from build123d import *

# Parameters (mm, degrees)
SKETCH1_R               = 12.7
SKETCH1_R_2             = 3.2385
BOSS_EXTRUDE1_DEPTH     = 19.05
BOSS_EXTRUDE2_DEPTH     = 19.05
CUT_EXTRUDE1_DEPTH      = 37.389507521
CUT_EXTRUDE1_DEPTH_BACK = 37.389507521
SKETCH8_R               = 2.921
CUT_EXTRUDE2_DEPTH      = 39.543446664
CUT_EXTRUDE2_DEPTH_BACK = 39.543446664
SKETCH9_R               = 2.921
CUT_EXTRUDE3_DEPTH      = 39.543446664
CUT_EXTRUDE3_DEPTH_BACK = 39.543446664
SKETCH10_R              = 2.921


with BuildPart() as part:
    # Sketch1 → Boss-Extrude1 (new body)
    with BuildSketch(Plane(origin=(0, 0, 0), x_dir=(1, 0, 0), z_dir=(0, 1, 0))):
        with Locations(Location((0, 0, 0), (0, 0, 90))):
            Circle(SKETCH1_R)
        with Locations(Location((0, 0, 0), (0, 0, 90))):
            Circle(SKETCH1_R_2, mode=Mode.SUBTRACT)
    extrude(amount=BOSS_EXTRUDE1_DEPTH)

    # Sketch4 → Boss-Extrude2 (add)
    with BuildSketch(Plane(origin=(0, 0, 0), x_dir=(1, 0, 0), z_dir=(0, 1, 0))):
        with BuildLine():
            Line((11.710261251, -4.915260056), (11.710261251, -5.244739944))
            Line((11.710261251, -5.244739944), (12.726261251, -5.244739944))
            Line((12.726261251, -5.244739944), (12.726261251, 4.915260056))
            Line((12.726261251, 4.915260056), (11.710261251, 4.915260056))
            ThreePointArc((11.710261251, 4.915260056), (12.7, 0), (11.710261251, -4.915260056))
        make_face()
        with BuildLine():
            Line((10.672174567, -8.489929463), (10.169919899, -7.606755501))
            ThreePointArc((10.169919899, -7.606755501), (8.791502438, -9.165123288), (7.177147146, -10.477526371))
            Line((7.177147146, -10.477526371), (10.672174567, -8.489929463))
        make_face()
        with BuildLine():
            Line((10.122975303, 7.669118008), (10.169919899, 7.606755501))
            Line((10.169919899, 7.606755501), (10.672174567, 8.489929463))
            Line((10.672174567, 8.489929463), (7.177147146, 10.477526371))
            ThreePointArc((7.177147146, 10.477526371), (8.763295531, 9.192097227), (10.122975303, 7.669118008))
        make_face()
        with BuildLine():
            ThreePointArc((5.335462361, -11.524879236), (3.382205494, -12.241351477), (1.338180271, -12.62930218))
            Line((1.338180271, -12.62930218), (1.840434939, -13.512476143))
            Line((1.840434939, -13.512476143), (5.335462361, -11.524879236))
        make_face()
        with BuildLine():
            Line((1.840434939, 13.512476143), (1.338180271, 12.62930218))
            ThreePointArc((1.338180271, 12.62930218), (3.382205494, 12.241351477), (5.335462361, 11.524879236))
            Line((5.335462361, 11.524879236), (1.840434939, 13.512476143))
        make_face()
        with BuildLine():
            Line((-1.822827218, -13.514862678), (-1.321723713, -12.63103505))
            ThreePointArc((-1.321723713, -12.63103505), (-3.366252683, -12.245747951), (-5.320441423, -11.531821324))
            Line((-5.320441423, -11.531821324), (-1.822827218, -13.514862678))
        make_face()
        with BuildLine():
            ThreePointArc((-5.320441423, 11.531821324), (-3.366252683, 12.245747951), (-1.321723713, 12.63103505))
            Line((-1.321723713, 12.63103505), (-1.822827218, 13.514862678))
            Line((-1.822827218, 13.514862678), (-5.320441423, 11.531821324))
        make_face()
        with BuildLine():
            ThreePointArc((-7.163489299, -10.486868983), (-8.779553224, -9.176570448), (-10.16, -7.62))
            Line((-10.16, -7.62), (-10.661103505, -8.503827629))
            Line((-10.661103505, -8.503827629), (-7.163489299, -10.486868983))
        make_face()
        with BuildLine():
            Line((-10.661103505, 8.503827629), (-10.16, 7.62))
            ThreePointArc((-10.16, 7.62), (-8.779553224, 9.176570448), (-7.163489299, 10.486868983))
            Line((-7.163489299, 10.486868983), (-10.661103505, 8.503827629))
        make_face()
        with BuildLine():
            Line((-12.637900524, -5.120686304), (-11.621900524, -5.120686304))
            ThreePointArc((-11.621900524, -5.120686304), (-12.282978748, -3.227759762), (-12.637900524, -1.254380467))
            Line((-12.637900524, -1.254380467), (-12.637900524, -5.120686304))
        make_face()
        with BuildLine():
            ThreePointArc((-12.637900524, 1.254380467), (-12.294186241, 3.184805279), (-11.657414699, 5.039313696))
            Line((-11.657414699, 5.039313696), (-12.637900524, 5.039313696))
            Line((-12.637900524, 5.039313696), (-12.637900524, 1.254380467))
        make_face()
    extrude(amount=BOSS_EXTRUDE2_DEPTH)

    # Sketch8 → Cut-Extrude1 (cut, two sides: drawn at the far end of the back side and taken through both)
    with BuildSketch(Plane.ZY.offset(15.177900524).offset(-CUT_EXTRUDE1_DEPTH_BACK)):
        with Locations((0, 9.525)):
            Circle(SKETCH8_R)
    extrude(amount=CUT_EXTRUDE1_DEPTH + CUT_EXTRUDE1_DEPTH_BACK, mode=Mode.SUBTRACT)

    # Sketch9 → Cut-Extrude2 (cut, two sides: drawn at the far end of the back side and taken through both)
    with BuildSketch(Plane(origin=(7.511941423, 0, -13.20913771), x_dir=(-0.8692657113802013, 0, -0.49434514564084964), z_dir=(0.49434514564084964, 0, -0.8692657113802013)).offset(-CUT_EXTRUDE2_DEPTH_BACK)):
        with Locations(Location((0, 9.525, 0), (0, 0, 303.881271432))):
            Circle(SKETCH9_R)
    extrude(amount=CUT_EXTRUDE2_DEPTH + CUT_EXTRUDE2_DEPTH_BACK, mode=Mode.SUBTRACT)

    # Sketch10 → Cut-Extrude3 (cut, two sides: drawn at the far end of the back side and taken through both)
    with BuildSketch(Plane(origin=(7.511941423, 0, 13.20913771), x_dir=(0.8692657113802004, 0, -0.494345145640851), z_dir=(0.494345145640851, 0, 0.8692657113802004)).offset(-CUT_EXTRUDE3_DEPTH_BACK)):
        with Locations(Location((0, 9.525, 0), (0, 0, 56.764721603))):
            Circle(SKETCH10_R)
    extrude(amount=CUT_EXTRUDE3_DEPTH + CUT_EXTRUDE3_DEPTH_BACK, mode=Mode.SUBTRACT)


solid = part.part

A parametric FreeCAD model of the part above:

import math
import FreeCAD as App
import Part
import Sketcher

V = App.Vector
Q = App.Units.Quantity

doc = App.newDocument("Part")
body = doc.addObject("PartDesign::Body", "Body")

# Sketch on XZ plane
sketch1 = doc.addObject("Sketcher::SketchObject", "Sketch")
body.addObject(sketch1)
sketch1.AttachmentSupport = (doc.XZ_Plane, [""])
sketch1.MapMode = "FlatFace"
sketch1.addGeometry([
    Part.Circle(V(0, 0, 0), V(0, 0, 1), 12.7),
    Part.Circle(V(0, 0, 0), V(0, 0, 1), 3.2),
], False)
sketch1.addConstraint([
    Sketcher.Constraint("Coincident", 0, 3, -1, 1),
    Sketcher.Constraint("Coincident", 1, 3, -1, 1),
    Sketcher.Constraint("Diameter", 0, Q("1 in")),
    Sketcher.Constraint("Diameter", 1, Q("0.255 in")),
])
pad1 = doc.addObject("PartDesign::Pad", "Pad")
body.addObject(pad1)
pad1.Profile = sketch1
pad1.Length = Q("0.75 in")
pad1.Reversed = True

# Sketch on XZ plane
sketch2 = doc.addObject("Sketcher::SketchObject", "Sketch001")
body.addObject(sketch2)
sketch2.AttachmentSupport = (doc.XZ_Plane, [""])
sketch2.MapMode = "FlatFace"
sketch2.addGeometry([
    Part.LineSegment(V(11.71, 4.92, 0), V(11.71, 5.24, 0)),  # 0
    Part.LineSegment(V(11.71, 5.24, 0), V(12.73, 5.24, 0)),  # 1
    Part.LineSegment(V(12.73, 5.24, 0), V(12.73, -4.92, 0)),  # 2
    Part.LineSegment(V(12.73, -4.92, 0), V(11.71, -4.92, 0)),  # 3
    Part.ArcOfCircle(Part.Circle(V(0, 0, 0), V(0, 0, 1), 12.7), math.radians(-23), math.radians(23)),  # 4
    Part.LineSegment(V(10.67, 8.49, 0), V(10.17, 7.61, 0)),  # 5
    Part.ArcOfCircle(Part.Circle(V(0, 0, 0), V(0, 0, 1), 12.7), math.radians(36.8), math.radians(55.59)),  # 6
    Part.LineSegment(V(7.18, 10.48, 0), V(10.67, 8.49, 0)),  # 7
    Part.LineSegment(V(10.12, -7.67, 0), V(10.17, -7.61, 0)),  # 8
    Part.LineSegment(V(10.17, -7.61, 0), V(10.67, -8.49, 0)),  # 9
    Part.LineSegment(V(10.67, -8.49, 0), V(7.18, -10.48, 0)),  # 10
    Part.ArcOfCircle(Part.Circle(V(0, 0, 0), V(0, 0, 1), 12.7), math.radians(-55.59), math.radians(-37.15)),  # 11
    Part.ArcOfCircle(Part.Circle(V(0, 0, 0), V(0, 0, 1), 12.7), math.radians(65.16), math.radians(83.95)),  # 12
    Part.LineSegment(V(1.34, 12.63, 0), V(1.84, 13.51, 0)),  # 13
    Part.LineSegment(V(1.84, 13.51, 0), V(5.34, 11.52, 0)),  # 14
    Part.LineSegment(V(1.84, -13.51, 0), V(1.34, -12.63, 0)),  # 15
    Part.ArcOfCircle(Part.Circle(V(0, 0, 0), V(0, 0, 1), 12.7), math.radians(-83.95), math.radians(-65.16)),  # 16
    Part.LineSegment(V(5.34, -11.52, 0), V(1.84, -13.51, 0)),  # 17
    Part.LineSegment(V(-1.82, 13.51, 0), V(-1.32, 12.63, 0)),  # 18
    Part.ArcOfCircle(Part.Circle(V(0, 0, 0), V(0, 0, 1), 12.7), math.radians(95.97), math.radians(114.77)),  # 19
    Part.LineSegment(V(-5.32, 11.53, 0), V(-1.82, 13.51, 0)),  # 20
    Part.ArcOfCircle(Part.Circle(V(0, 0, 0), V(0, 0, 1), 12.7), math.radians(-114.77), math.radians(-95.97)),  # 21
    Part.LineSegment(V(-1.32, -12.63, 0), V(-1.82, -13.51, 0)),  # 22
    Part.LineSegment(V(-1.82, -13.51, 0), V(-5.32, -11.53, 0)),  # 23
    Part.ArcOfCircle(Part.Circle(V(0, 0, 0), V(0, 0, 1), 12.7), math.radians(124.34), math.radians(143.13)),  # 24
    Part.LineSegment(V(-10.16, 7.62, 0), V(-10.66, 8.5, 0)),  # 25
    Part.LineSegment(V(-10.66, 8.5, 0), V(-7.16, 10.49, 0)),  # 26
    Part.LineSegment(V(-10.66, -8.5, 0), V(-10.16, -7.62, 0)),  # 27
    Part.ArcOfCircle(Part.Circle(V(0, 0, 0), V(0, 0, 1), 12.7), math.radians(-143.13), math.radians(-124.34)),  # 28
    Part.LineSegment(V(-7.16, -10.49, 0), V(-10.66, -8.5, 0)),  # 29
    Part.LineSegment(V(-12.64, 5.12, 0), V(-11.62, 5.12, 0)),  # 30
    Part.ArcOfCircle(Part.Circle(V(0, 0, 0), V(0, 0, 1), 12.7), math.radians(156.22), math.radians(174.33)),  # 31
    Part.LineSegment(V(-12.64, 1.25, 0), V(-12.64, 5.12, 0)),  # 32
    Part.ArcOfCircle(Part.Circle(V(0, 0, 0), V(0, 0, 1), 12.7), math.radians(-174.33), math.radians(-156.62)),  # 33
    Part.LineSegment(V(-11.66, -5.04, 0), V(-12.64, -5.04, 0)),  # 34
    Part.LineSegment(V(-12.64, -5.04, 0), V(-12.64, -1.25, 0)),  # 35
], False)
sketch2.addConstraint([
    Sketcher.Constraint("Coincident", 0, 2, 1, 1),
    Sketcher.Constraint("Coincident", 1, 2, 2, 1),
    Sketcher.Constraint("Coincident", 2, 2, 3, 1),
    Sketcher.Constraint("Coincident", 3, 2, 4, 1),
    Sketcher.Constraint("Coincident", 4, 2, 0, 1),
    Sketcher.Constraint("Coincident", 5, 2, 6, 1),
    Sketcher.Constraint("Coincident", 6, 2, 7, 1),
    Sketcher.Constraint("Coincident", 7, 2, 5, 1),
    Sketcher.Constraint("Coincident", 8, 2, 9, 1),
    Sketcher.Constraint("Coincident", 9, 2, 10, 1),
    Sketcher.Constraint("Coincident", 10, 2, 11, 1),
    Sketcher.Constraint("Coincident", 11, 2, 8, 1),
    Sketcher.Constraint("Coincident", 12, 2, 13, 1),
    Sketcher.Constraint("Coincident", 13, 2, 14, 1),
    Sketcher.Constraint("Coincident", 14, 2, 12, 1),
    Sketcher.Constraint("Coincident", 15, 2, 16, 1),
    Sketcher.Constraint("Coincident", 16, 2, 17, 1),
    Sketcher.Constraint("Coincident", 17, 2, 15, 1),
    Sketcher.Constraint("Coincident", 18, 2, 19, 1),
    Sketcher.Constraint("Coincident", 19, 2, 20, 1),
    Sketcher.Constraint("Coincident", 20, 2, 18, 1),
    Sketcher.Constraint("Coincident", 21, 2, 22, 1),
    Sketcher.Constraint("Coincident", 22, 2, 23, 1),
    Sketcher.Constraint("Coincident", 23, 2, 21, 1),
    Sketcher.Constraint("Coincident", 24, 2, 25, 1),
    Sketcher.Constraint("Coincident", 25, 2, 26, 1),
    Sketcher.Constraint("Coincident", 26, 2, 24, 1),
    Sketcher.Constraint("Coincident", 27, 2, 28, 1),
    Sketcher.Constraint("Coincident", 28, 2, 29, 1),
    Sketcher.Constraint("Coincident", 29, 2, 27, 1),
    Sketcher.Constraint("Coincident", 30, 2, 31, 1),
    Sketcher.Constraint("Coincident", 31, 2, 32, 1),
    Sketcher.Constraint("Coincident", 32, 2, 30, 1),
    Sketcher.Constraint("Coincident", 33, 2, 34, 1),
    Sketcher.Constraint("Coincident", 34, 2, 35, 1),
    Sketcher.Constraint("Coincident", 35, 2, 33, 1),
    Sketcher.Constraint("Vertical", 0),
    Sketcher.Constraint("Horizontal", 1),
    Sketcher.Constraint("Vertical", 2),
    Sketcher.Constraint("Horizontal", 3),
    Sketcher.Constraint("Horizontal", 30),
    Sketcher.Constraint("Vertical", 32),
    Sketcher.Constraint("Horizontal", 34),
    Sketcher.Constraint("Vertical", 35),
    Sketcher.Constraint("Coincident", 4, 3, -1, 1),
    Sketcher.Constraint("Coincident", 6, 3, -1, 1),
    Sketcher.Constraint("Coincident", 11, 3, -1, 1),
    Sketcher.Constraint("Coincident", 12, 3, -1, 1),
    Sketcher.Constraint("Coincident", 16, 3, -1, 1),
    Sketcher.Constraint("Coincident", 19, 3, -1, 1),
    Sketcher.Constraint("Coincident", 21, 3, -1, 1),
    Sketcher.Constraint("Coincident", 24, 3, -1, 1),
    Sketcher.Constraint("Coincident", 28, 3, -1, 1),
    Sketcher.Constraint("Coincident", 31, 3, -1, 1),
    Sketcher.Constraint("Coincident", 33, 3, -1, 1),
    Sketcher.Constraint("Equal", 4, 6),
    Sketcher.Constraint("Equal", 6, 11),
    Sketcher.Constraint("Equal", 11, 12),
    Sketcher.Constraint("Equal", 12, 16),
    Sketcher.Constraint("Equal", 16, 19),
    Sketcher.Constraint("Equal", 19, 21),
    Sketcher.Constraint("Equal", 21, 24),
    Sketcher.Constraint("Equal", 24, 28),
    Sketcher.Constraint("Equal", 28, 31),
    Sketcher.Constraint("Equal", 31, 33),
    Sketcher.Constraint("Symmetric", 5, 2, 8, 2, -1),
    Sketcher.Constraint("Symmetric", 7, 2, 9, 2, -1),
    Sketcher.Constraint("Symmetric", 13, 2, 17, 2, -1),
    Sketcher.Constraint("Symmetric", 20, 2, 22, 2, -1),
    Sketcher.Constraint("Symmetric", 25, 2, 29, 2, -1),
    Sketcher.Constraint("Perpendicular", 5, 7),
    Sketcher.Constraint("Perpendicular", 9, 10),
    Sketcher.Constraint("Perpendicular", 7, 13),
    Sketcher.Constraint("Perpendicular", 13, 14),
    Sketcher.Constraint("Perpendicular", 10, 15),
    Sketcher.Constraint("Perpendicular", 15, 17),
    Sketcher.Constraint("Perpendicular", 18, 20),
    Sketcher.Constraint("Perpendicular", 22, 23),
    Sketcher.Constraint("Perpendicular", 20, 25),
    Sketcher.Constraint("Perpendicular", 25, 26),
    Sketcher.Constraint("Perpendicular", 23, 27),
    Sketcher.Constraint("Perpendicular", 27, 29),
    Sketcher.Constraint("Vertical", 0, 2, 3, 2),
    Sketcher.Constraint("Vertical", 19, 2, 23, 2),
    Sketcher.Constraint("Vertical", 32, 2, 34, 2),
    Sketcher.Constraint("Equal", 3, 30),
    Sketcher.Constraint("Equal", 9, 13),
    Sketcher.Constraint("Equal", 10, 14),
    Sketcher.Constraint("Equal", 15, 18),
    Sketcher.Constraint("Equal", 17, 20),
    Sketcher.Constraint("Equal", 22, 25),
    Sketcher.Constraint("Equal", 23, 26),
    Sketcher.Constraint("Radius", 4, Q("0.5 in")),
    Sketcher.Constraint("DistanceY", 2, 2, 2, 1, Q("0.4 in")),
    Sketcher.Constraint("DistanceX", 1, 1, 1, 2, Q("0.04 in")),
    Sketcher.Constraint("DistanceX", 24, 2, -1, 1, Q("0.4 in")),
    Sketcher.Constraint("Distance", 5, Q("0.04 in")),
    Sketcher.Constraint("DistanceY", 0, 1, 0, 2, Q("0.32948 mm")),
    Sketcher.Constraint("DistanceX", 30, 2, -1, 1, Q("11.621901 mm")),
    Sketcher.Constraint("DistanceX", 11, 2, 9, 2, Q("0.549199 mm")),
    Sketcher.Constraint("DistanceX", 21, 2, 11, 2, Q("11.444699 mm")),
    Sketcher.Constraint("DistanceX", 34, 2, 34, 1, Q("0.980486 mm")),
    Sketcher.Constraint("DistanceX", -1, 1, 5, 2, Q("10.16992 mm")),
])
pad2 = doc.addObject("PartDesign::Pad", "Pad001")
body.addObject(pad2)
pad2.Profile = sketch2
pad2.Length = Q("0.75 in")
pad2.Reversed = True

# Sketch on YZ plane
sketch3 = doc.addObject("Sketcher::SketchObject", "Sketch002")
body.addObject(sketch3)
sketch3.AttachmentSupport = (doc.YZ_Plane, [""])
sketch3.MapMode = "FlatFace"
sketch3.AttachmentOffset = App.Placement(V(0, 0, -15.177901), App.Rotation())
sketch3.addGeometry(Part.Circle(V(9.5, 0, 0), V(0, 0, 1), 2.9), False)
sketch3.addConstraint([
    Sketcher.Constraint("PointOnObject", 0, 3, -1),
    Sketcher.Constraint("Diameter", 0, Q("0.23 in")),
    Sketcher.Constraint("DistanceX", -1, 1, 0, 3, Q("0.375 in")),
])
pocket1 = doc.addObject("PartDesign::Pocket", "Pocket")
body.addObject(pocket1)
pocket1.Profile = sketch3
pocket1.Type = "ThroughAll"
pocket1.Midplane = True

# Sketch on an angled plane
sketch4 = doc.addObject("Sketcher::SketchObject", "Sketch003")
body.addObject(sketch4)
sketch4.Placement = App.Placement(V(7.511941, 0, -13.209138), App.Rotation(V(-0.869265711, 0, -0.494345146), V(0, 1, 0), V(0.494345146, 0, -0.869265711), "ZXY"))
sketch4.addGeometry(Part.Circle(V(0, 9.5, 0), V(0, 0, 1), 2.9), False)
sketch4.addConstraint([
    Sketcher.Constraint("PointOnObject", 0, 3, -2),
    Sketcher.Constraint("Diameter", 0, Q("0.23 in")),
    Sketcher.Constraint("DistanceY", -1, 1, 0, 3, Q("0.375 in")),
])
pocket2 = doc.addObject("PartDesign::Pocket", "Pocket001")
body.addObject(pocket2)
pocket2.Profile = sketch4
pocket2.Type = "ThroughAll"
pocket2.Midplane = True

# Sketch on an angled plane
sketch5 = doc.addObject("Sketcher::SketchObject", "Sketch004")
body.addObject(sketch5)
sketch5.Placement = App.Placement(V(7.511941, 0, 13.209138), App.Rotation(V(0.869265711, 0, -0.494345146), V(0, 1, 0), V(0.494345146, 0, 0.869265711), "ZXY"))
sketch5.addGeometry(Part.Circle(V(0, 9.5, 0), V(0, 0, 1), 2.9), False)
sketch5.addConstraint([
    Sketcher.Constraint("PointOnObject", 0, 3, -2),
    Sketcher.Constraint("Diameter", 0, Q("0.23 in")),
    Sketcher.Constraint("DistanceY", -1, 1, 0, 3, Q("0.375 in")),
])
pocket3 = doc.addObject("PartDesign::Pocket", "Pocket002")
body.addObject(pocket3)
pocket3.Profile = sketch5
pocket3.Type = "ThroughAll"
pocket3.Midplane = True

doc.recompute()
